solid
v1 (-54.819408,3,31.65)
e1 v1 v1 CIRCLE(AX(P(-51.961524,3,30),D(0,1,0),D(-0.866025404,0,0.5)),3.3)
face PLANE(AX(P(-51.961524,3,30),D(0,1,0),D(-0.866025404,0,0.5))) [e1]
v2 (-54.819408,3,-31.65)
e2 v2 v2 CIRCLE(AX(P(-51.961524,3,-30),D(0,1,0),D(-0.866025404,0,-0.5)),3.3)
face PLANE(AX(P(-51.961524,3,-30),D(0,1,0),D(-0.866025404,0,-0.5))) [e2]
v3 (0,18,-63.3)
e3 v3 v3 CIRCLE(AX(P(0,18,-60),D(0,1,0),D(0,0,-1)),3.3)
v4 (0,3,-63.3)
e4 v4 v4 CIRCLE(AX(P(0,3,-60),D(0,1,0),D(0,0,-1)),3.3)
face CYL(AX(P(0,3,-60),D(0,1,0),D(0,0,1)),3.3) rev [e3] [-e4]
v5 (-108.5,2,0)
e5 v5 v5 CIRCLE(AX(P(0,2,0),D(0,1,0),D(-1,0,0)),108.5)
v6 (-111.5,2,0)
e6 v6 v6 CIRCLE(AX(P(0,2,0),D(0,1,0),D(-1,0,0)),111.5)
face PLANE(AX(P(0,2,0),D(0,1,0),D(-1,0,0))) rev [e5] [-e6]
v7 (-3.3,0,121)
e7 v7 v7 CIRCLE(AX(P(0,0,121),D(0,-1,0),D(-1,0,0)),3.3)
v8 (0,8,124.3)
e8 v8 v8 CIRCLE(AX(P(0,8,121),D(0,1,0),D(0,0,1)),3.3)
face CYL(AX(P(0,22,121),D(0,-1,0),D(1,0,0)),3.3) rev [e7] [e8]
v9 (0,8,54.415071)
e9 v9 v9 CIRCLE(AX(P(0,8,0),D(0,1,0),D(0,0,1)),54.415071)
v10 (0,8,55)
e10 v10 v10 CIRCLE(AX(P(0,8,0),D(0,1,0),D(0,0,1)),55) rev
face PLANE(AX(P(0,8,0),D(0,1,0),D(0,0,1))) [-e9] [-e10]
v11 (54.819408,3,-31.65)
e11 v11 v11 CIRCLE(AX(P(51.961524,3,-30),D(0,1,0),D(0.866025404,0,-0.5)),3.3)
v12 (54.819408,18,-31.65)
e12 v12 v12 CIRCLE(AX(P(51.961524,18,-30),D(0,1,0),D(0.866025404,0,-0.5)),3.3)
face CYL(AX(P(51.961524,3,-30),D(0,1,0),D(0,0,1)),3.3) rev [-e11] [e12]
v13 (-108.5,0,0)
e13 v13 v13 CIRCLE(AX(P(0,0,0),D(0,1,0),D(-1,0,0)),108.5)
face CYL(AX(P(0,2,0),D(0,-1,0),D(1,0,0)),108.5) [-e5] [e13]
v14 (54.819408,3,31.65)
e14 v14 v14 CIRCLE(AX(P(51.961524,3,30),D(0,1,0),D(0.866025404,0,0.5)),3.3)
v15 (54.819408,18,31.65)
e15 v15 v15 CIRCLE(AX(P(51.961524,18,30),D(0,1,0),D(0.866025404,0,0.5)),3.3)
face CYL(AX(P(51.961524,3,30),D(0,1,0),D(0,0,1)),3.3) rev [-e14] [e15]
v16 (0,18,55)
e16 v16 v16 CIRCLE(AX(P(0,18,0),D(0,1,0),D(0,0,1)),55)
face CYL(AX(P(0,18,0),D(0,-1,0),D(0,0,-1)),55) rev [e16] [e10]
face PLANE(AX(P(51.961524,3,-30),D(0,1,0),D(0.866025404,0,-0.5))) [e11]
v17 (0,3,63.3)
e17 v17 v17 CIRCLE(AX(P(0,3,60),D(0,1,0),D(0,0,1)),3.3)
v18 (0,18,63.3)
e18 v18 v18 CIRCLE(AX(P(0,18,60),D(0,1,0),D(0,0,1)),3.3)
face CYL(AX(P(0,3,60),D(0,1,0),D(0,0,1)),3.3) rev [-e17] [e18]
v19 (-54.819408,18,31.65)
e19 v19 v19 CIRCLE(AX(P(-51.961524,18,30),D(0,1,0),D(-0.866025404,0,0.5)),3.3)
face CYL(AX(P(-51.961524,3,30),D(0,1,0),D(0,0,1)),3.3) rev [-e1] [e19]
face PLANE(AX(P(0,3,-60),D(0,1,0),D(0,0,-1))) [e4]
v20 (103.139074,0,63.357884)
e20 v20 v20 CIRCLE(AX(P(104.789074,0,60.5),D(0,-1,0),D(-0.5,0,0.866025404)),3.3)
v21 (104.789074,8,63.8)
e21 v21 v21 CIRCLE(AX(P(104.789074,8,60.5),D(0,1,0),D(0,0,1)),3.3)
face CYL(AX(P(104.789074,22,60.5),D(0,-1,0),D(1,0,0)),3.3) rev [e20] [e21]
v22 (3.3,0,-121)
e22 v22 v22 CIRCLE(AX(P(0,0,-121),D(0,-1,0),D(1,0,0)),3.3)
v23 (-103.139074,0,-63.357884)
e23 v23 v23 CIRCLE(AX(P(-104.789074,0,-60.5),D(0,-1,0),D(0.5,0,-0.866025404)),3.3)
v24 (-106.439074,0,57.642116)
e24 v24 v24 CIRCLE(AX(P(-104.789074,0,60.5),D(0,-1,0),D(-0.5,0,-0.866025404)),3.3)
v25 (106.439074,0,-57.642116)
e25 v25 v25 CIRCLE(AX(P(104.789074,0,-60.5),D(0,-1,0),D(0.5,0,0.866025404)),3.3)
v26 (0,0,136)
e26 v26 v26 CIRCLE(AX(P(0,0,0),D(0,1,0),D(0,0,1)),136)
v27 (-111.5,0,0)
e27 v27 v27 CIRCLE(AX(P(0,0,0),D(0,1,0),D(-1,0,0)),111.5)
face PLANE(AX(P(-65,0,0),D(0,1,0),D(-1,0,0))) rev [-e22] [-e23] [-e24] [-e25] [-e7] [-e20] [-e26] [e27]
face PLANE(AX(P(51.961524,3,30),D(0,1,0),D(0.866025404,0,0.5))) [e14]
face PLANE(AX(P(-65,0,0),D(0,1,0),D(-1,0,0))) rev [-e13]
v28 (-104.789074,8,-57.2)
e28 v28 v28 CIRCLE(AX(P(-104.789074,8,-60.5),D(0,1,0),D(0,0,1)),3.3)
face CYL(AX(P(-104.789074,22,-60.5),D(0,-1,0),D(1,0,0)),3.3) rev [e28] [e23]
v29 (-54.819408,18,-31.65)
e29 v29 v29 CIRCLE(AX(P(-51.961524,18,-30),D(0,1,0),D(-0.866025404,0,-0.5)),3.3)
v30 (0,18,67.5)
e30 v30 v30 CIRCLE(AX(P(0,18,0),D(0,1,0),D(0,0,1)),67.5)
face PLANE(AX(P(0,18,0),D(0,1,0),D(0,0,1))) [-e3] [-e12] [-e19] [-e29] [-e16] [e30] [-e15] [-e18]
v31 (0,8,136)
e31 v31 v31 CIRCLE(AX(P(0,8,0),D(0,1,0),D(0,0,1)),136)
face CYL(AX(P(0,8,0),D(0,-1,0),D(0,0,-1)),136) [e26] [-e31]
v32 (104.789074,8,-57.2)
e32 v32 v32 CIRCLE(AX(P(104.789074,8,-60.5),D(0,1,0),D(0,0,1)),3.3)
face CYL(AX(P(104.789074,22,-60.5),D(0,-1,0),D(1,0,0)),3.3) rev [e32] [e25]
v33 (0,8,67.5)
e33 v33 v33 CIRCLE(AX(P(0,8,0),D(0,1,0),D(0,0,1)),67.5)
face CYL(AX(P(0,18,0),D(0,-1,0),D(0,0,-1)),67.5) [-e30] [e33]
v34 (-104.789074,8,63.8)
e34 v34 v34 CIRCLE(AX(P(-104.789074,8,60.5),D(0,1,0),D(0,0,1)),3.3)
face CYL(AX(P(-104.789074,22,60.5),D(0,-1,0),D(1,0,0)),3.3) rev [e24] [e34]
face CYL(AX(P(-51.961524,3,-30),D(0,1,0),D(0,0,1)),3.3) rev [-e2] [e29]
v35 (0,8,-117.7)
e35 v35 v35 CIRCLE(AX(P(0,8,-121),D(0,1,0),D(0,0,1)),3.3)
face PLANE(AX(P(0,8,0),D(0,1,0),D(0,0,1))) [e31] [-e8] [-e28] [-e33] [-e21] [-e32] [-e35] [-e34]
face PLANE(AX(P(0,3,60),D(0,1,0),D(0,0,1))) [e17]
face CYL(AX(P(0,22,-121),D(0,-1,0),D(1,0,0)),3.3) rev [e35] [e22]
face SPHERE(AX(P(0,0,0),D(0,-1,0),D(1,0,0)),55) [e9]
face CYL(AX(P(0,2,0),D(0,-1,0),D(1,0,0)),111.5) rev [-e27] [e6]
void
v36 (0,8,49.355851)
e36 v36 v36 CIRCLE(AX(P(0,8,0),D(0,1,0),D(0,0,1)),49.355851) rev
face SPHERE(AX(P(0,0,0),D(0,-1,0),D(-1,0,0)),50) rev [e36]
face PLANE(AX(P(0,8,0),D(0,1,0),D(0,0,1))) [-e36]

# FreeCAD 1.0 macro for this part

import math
import FreeCAD as App
import Part
import Sketcher

V = App.Vector
Q = App.Units.Quantity

doc = App.newDocument("Part")
body = doc.addObject("PartDesign::Body", "Body")

# Sketch on XY plane
sketch1 = doc.addObject("Sketcher::SketchObject", "Sketch")
body.addObject(sketch1)
sketch1.AttachmentSupport = (doc.XY_Plane, [""])
sketch1.MapMode = "FlatFace"
sketch1.addGeometry([
    Part.LineSegment(V(-65, 5, 0), V(-65, 0, 0)),  # 0
    Part.LineSegment(V(-65, 0, 0), V(-50, 0, 0)),  # 1
    Part.ArcOfCircle(Part.Circle(V(0, 0, 0), V(0, 0, 1), 50), math.radians(90), math.radians(180)),  # 2
    Part.LineSegment(V(0, 50, 0), V(0, 55, 0)),  # 3
    Part.ArcOfCircle(Part.Circle(V(0, 0, 0), V(0, 0, 1), 55), math.radians(90), math.radians(175)),  # 4
    Part.LineSegment(V(-55, 5, 0), V(-65, 5, 0)),  # 5
], False)
sketch1.addConstraint([
    Sketcher.Constraint("Coincident", 0, 2, 1, 1),
    Sketcher.Constraint("Coincident", 1, 2, 2, 2),
    Sketcher.Constraint("Coincident", 2, 1, 3, 1),
    Sketcher.Constraint("Coincident", 3, 2, 4, 1),
    Sketcher.Constraint("Coincident", 4, 2, 5, 1),
    Sketcher.Constraint("Coincident", 5, 2, 0, 1),
    Sketcher.Constraint("Vertical", 0),
    Sketcher.Constraint("Horizontal", 1),
    Sketcher.Constraint("Vertical", 3),
    Sketcher.Constraint("Horizontal", 5),
    Sketcher.Constraint("Coincident", 2, 3, -1, 1),
    Sketcher.Constraint("Coincident", 4, 3, -1, 1),
    Sketcher.Constraint("PointOnObject", 0, 2, -1),
    Sketcher.Constraint("PointOnObject", 2, 1, -2),
    Sketcher.Constraint("Equal", 0, 3),
    Sketcher.Constraint("Radius", 2, Q("50 mm")),
    Sketcher.Constraint("Radius", 4, Q("55 mm")),
    Sketcher.Constraint("DistanceX", 1, 1, 1, 2, Q("15 mm")),
])
revolution = doc.addObject("PartDesign::Revolution", "Revolution")
body.addObject(revolution)
revolution.Profile = sketch1
revolution.ReferenceAxis = (sketch1, ["V_Axis"])
revolution.Angle = 360

# Sketch on XZ plane
sketch2 = doc.addObject("Sketcher::SketchObject", "Sketch001")
body.addObject(sketch2)
sketch2.AttachmentSupport = (doc.XZ_Plane, [""])
sketch2.MapMode = "FlatFace"
sketch2.addGeometry(Part.Circle(V(0, 0, 0), V(0, 0, 1), 136), False)
sketch2.addConstraint([
    Sketcher.Constraint("Coincident", 0, 3, -1, 1),
    Sketcher.Constraint("Diameter", 0, Q("272 mm")),
])
pad1 = doc.addObject("PartDesign::Pad", "Pad")
body.addObject(pad1)
pad1.Profile = sketch2
pad1.Length = 8
pad1.Reversed = True

# Sketch on XZ plane
sketch3 = doc.addObject("Sketcher::SketchObject", "Sketch002")
body.addObject(sketch3)
sketch3.AttachmentSupport = (doc.XZ_Plane, [""])
sketch3.MapMode = "FlatFace"
sketch3.addGeometry([
    Part.Circle(V(0, 0, 0), V(0, 0, 1), 112),
    Part.Circle(V(0, 0, 0), V(0, 0, 1), 108),
], False)
sketch3.addConstraint([
    Sketcher.Constraint("Coincident", 0, 3, -1, 1),
    Sketcher.Constraint("Coincident", 1, 3, -1, 1),
    Sketcher.Constraint("Diameter", 0, Q("223 mm")),
    Sketcher.Constraint("Diameter", 1, Q("217 mm")),
])
pocket1 = doc.addObject("PartDesign::Pocket", "Pocket")
body.addObject(pocket1)
pocket1.Profile = sketch3
pocket1.Length = 2

# Sketch on XZ plane
sketch4 = doc.addObject("Sketcher::SketchObject", "Sketch003")
body.addObject(sketch4)
sketch4.AttachmentSupport = (doc.XZ_Plane, [""])
sketch4.MapMode = "FlatFace"
sketch4.addGeometry(Part.Circle(V(0, -121, 0), V(0, 0, 1), 3.3), False)
sketch4.addConstraint([
    Sketcher.Constraint("PointOnObject", 0, 3, -2),
    Sketcher.Constraint("Diameter", 0, Q("6.6 mm")),
    Sketcher.Constraint("DistanceY", 0, 3, -1, 1, Q("121 mm")),
])
pocket2 = doc.addObject("PartDesign::Pocket", "Pocket001")
body.addObject(pocket2)
pocket2.Profile = sketch4
pocket2.Length = 22
doc.recompute()

polarpattern = doc.addObject("PartDesign::PolarPattern", "PolarPattern")
body.addObject(polarpattern)
polarpattern.Originals = [pocket2]
polarpattern.Axis = (doc.Y_Axis, [""])
polarpattern.Angle = 360
polarpattern.Occurrences = 6
body.Tip = polarpattern

# Sketch on XZ plane
sketch5 = doc.addObject("Sketcher::SketchObject", "Sketch004")
body.addObject(sketch5)
sketch5.AttachmentSupport = (doc.XZ_Plane, [""])
sketch5.MapMode = "FlatFace"
sketch5.AttachmentOffset = App.Placement(V(0, 0, -8), App.Rotation())
sketch5.addGeometry([
    Part.Circle(V(0, 0, 0), V(0, 0, 1), 68),
    Part.Circle(V(0, 0, 0), V(0, 0, 1), 55),
], False)
sketch5.addConstraint([
    Sketcher.Constraint("Coincident", 0, 3, -1, 1),
    Sketcher.Constraint("Coincident", 1, 3, -1, 1),
    Sketcher.Constraint("Diameter", 0, Q("135 mm")),
    Sketcher.Constraint("Diameter", 1, Q("110 mm")),
])
pad2 = doc.addObject("PartDesign::Pad", "Pad001")
body.addObject(pad2)
pad2.Profile = sketch5
pad2.Length = 10
pad2.Reversed = True

# Sketch on XZ plane
sketch6 = doc.addObject("Sketcher::SketchObject", "Sketch005")
body.addObject(sketch6)
sketch6.AttachmentSupport = (doc.XZ_Plane, [""])
sketch6.MapMode = "FlatFace"
sketch6.AttachmentOffset = App.Placement(V(0, 0, -18), App.Rotation())
sketch6.addGeometry(Part.Circle(V(0, 60, 0), V(0, 0, 1), 3.3), False)
sketch6.addConstraint([
    Sketcher.Constraint("PointOnObject", 0, 3, -2),
    Sketcher.Constraint("Diameter", 0, Q("6.6 mm")),
    Sketcher.Constraint("DistanceY", -1, 1, 0, 3, Q("60 mm")),
])
pocket3 = doc.addObject("PartDesign::Pocket", "Pocket002")
body.addObject(pocket3)
pocket3.Profile = sketch6
pocket3.Length = 15
pocket3.Reversed = True
doc.recompute()

polarpattern2 = doc.addObject("PartDesign::PolarPattern", "PolarPattern001")
body.addObject(polarpattern2)
polarpattern2.Originals = [pocket3]
polarpattern2.Axis = (doc.Y_Axis, [""])
polarpattern2.Angle = 360
polarpattern2.Occurrences = 6
body.Tip = polarpattern2

doc.recompute()
